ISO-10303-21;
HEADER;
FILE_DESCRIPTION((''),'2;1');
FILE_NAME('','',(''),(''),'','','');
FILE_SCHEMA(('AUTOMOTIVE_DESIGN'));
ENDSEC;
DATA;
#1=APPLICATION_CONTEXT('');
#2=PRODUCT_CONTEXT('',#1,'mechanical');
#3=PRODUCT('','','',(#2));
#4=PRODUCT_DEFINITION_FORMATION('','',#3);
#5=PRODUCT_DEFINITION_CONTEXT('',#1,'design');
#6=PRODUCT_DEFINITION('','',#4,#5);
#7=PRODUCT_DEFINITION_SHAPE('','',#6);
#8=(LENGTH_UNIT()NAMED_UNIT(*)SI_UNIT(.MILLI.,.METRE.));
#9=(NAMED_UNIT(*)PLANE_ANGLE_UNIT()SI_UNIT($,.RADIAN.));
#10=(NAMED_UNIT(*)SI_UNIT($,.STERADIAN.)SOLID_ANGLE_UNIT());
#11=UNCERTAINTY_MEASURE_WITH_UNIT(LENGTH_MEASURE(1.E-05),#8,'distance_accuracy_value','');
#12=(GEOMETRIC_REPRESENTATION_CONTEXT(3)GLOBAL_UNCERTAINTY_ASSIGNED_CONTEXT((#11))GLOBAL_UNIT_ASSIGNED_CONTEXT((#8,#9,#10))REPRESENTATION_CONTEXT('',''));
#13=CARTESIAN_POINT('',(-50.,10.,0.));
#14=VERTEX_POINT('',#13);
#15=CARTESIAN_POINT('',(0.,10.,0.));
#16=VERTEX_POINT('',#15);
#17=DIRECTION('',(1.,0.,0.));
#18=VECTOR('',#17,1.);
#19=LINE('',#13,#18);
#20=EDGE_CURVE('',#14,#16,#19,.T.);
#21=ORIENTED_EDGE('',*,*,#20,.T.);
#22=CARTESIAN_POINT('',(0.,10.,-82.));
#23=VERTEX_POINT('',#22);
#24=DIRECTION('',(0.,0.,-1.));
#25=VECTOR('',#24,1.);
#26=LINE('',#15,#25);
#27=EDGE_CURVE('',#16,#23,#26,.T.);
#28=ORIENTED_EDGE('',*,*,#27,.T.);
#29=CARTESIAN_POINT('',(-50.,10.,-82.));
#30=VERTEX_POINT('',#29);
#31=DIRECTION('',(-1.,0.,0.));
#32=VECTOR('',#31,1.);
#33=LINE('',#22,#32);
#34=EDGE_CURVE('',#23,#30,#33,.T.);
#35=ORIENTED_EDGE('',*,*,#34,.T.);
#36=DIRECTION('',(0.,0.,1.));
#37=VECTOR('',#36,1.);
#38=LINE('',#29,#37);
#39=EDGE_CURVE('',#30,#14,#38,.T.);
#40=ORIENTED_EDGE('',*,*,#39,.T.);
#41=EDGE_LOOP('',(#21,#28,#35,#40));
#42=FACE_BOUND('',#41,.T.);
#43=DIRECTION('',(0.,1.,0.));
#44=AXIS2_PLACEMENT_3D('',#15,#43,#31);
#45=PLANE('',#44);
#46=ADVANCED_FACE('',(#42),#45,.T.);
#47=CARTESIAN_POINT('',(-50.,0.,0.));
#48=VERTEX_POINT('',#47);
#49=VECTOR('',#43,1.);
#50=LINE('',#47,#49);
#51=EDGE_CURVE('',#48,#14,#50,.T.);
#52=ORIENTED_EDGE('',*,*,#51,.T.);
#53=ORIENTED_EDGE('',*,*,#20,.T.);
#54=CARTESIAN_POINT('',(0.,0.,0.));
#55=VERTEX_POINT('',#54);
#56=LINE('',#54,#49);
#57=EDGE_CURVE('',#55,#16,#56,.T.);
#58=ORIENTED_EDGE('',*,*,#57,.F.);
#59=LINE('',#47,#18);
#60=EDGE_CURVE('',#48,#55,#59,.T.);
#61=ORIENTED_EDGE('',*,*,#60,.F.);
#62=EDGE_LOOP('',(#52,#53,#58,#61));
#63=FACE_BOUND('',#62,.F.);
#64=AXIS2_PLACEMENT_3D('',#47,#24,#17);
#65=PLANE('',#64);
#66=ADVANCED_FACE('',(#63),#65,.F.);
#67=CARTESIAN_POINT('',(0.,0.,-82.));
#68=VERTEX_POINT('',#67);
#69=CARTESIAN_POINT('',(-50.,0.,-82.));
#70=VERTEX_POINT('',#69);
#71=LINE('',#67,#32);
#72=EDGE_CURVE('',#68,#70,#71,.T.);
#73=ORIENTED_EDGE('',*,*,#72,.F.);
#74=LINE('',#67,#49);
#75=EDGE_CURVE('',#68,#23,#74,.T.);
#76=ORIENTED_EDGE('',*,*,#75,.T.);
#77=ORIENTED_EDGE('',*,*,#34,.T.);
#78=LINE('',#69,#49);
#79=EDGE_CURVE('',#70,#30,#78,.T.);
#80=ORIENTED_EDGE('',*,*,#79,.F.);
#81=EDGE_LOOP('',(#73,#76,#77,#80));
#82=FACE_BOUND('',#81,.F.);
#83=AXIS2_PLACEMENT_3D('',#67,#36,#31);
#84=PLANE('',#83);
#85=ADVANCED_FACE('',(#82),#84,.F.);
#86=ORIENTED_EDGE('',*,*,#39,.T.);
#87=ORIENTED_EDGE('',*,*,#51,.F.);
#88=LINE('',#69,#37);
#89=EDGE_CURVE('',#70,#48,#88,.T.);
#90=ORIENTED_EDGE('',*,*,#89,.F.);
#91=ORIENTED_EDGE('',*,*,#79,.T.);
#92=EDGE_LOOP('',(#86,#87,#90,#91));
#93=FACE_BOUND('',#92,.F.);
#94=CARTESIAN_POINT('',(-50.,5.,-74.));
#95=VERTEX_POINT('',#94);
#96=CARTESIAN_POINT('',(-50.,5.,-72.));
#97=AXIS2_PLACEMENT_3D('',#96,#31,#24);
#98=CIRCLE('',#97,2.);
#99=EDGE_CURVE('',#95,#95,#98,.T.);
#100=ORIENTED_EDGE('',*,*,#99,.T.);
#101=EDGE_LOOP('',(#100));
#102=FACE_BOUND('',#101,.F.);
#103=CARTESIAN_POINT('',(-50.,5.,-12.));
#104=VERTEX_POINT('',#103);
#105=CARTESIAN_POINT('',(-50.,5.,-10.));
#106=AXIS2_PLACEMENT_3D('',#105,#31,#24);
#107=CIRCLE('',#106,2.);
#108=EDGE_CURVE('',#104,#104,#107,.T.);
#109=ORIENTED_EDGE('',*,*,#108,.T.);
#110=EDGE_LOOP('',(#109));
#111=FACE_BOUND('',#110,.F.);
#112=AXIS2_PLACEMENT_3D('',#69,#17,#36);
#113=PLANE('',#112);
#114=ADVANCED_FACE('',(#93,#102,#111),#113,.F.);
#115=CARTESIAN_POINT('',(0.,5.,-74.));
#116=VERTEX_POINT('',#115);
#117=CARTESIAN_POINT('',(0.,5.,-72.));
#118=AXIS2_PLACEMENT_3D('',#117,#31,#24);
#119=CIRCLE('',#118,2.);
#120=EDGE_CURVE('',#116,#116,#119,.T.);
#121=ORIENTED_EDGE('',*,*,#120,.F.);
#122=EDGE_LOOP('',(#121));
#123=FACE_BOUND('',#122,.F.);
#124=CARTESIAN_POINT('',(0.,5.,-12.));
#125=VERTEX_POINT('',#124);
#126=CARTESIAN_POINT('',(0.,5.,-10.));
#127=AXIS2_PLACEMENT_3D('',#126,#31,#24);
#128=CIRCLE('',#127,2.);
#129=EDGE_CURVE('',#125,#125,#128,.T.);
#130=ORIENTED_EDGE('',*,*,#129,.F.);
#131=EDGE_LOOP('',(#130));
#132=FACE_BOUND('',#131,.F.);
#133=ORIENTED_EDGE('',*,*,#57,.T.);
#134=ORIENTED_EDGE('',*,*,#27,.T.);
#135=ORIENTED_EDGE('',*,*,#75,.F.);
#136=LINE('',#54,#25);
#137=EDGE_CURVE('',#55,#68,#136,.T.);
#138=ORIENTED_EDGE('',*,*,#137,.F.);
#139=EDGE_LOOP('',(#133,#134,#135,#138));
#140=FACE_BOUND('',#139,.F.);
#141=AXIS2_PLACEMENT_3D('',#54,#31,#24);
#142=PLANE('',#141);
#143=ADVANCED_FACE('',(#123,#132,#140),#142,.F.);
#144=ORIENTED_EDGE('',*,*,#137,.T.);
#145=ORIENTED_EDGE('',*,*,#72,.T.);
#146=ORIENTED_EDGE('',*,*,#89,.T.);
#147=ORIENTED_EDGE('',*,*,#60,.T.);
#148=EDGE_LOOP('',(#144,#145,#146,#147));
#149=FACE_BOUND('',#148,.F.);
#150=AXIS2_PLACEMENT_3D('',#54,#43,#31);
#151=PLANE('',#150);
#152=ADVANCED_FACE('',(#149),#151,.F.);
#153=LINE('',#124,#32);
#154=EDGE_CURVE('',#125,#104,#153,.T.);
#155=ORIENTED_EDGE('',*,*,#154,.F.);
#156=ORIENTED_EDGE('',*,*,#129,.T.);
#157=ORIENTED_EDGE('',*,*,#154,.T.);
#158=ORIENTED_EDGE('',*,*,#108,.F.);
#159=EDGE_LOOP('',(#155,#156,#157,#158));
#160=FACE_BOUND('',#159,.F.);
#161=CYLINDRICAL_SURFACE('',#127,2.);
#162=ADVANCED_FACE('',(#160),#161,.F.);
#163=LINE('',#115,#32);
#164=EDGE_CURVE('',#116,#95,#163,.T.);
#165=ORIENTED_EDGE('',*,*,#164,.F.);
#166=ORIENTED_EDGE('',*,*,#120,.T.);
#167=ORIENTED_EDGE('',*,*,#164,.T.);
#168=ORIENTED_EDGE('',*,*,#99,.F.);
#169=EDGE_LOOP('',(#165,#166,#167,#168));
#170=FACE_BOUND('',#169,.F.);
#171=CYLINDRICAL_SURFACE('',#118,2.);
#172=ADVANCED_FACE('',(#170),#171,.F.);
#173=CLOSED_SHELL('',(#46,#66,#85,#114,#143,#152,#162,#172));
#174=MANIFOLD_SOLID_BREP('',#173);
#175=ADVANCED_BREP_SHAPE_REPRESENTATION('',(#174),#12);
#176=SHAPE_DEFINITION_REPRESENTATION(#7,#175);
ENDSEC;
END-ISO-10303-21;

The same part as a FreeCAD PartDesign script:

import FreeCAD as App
import Part
import Sketcher
from FreeCAD import Vector
Q = App.Units.Quantity


def add_polygon(sketch, points):
    """Adds a closed chain of lines whose ends are joined by coincident constraints."""
    first, n = sketch.GeometryCount, len(points)
    for a, b in zip(points, points[1:] + points[:1]):
        sketch.addGeometry(Part.LineSegment(App.Vector(*a, 0), App.Vector(*b, 0)), False)
    for i in range(n):
        sketch.addConstraint(Sketcher.Constraint("Coincident", first + i, 2, first + (i + 1) % n, 1))

doc = App.newDocument("Part")
body = doc.addObject("PartDesign::Body", "Body")

# Sketch on XZ plane
sketch1 = body.newObject("Sketcher::SketchObject", "Sketch")
sketch1.AttachmentSupport = (doc.getObject("XZ_Plane"), [""])
sketch1.MapMode = "FlatFace"
add_polygon(sketch1, [(-50, -82), (-50, 0), (0, 0), (0, -82)])  # lines 0-3
sketch1.addConstraint(Sketcher.Constraint("Vertical", 0))
sketch1.addConstraint(Sketcher.Constraint("Horizontal", 1))
sketch1.addConstraint(Sketcher.Constraint("Vertical", 2))
sketch1.addConstraint(Sketcher.Constraint("Horizontal", 3))
sketch1.addConstraint(Sketcher.Constraint("Coincident", 1, 2, -1, 1))
sketch1.addConstraint(Sketcher.Constraint("DistanceX", 1, 1, 1, 2, Q("50 mm")))
sketch1.addConstraint(Sketcher.Constraint("DistanceY", 0, 1, 0, 2, Q("82 mm")))
pad1 = body.newObject("PartDesign::Pad", "Pad")
pad1.Profile = sketch1
pad1.Length = 10
pad1.Reversed = True

# Sketch on YZ plane
sketch2 = body.newObject("Sketcher::SketchObject", "Sketch001")
sketch2.AttachmentSupport = (doc.getObject("YZ_Plane"), [""])
sketch2.MapMode = "FlatFace"
sketch2.addGeometry(Part.Circle(Vector(5, -10, 0), Vector(0, 0, 1), 2), False)
sketch2.addGeometry(Part.Circle(Vector(5, -72, 0), Vector(0, 0, 1), 2), False)
sketch2.addConstraint(Sketcher.Constraint("Equal", 0, 1))
sketch2.addConstraint(Sketcher.Constraint("Vertical", 0, 3, 1, 3))
sketch2.addConstraint(Sketcher.Constraint("Diameter", 0, Q("4 mm")))
sketch2.addConstraint(Sketcher.Constraint("DistanceX", -1, 1, 0, 3, Q("5 mm")))
sketch2.addConstraint(Sketcher.Constraint("DistanceY", 0, 3, -1, 1, Q("10 mm")))
sketch2.addConstraint(Sketcher.Constraint("DistanceY", 1, 3, -1, 1, Q("72 mm")))
doc.recompute()
hole = body.newObject("PartDesign::Hole", "Hole")
hole.Profile = sketch2
hole.ThreadType = "None"
hole.Diameter = 4
hole.DepthType = "ThroughAll"

doc.recompute()
